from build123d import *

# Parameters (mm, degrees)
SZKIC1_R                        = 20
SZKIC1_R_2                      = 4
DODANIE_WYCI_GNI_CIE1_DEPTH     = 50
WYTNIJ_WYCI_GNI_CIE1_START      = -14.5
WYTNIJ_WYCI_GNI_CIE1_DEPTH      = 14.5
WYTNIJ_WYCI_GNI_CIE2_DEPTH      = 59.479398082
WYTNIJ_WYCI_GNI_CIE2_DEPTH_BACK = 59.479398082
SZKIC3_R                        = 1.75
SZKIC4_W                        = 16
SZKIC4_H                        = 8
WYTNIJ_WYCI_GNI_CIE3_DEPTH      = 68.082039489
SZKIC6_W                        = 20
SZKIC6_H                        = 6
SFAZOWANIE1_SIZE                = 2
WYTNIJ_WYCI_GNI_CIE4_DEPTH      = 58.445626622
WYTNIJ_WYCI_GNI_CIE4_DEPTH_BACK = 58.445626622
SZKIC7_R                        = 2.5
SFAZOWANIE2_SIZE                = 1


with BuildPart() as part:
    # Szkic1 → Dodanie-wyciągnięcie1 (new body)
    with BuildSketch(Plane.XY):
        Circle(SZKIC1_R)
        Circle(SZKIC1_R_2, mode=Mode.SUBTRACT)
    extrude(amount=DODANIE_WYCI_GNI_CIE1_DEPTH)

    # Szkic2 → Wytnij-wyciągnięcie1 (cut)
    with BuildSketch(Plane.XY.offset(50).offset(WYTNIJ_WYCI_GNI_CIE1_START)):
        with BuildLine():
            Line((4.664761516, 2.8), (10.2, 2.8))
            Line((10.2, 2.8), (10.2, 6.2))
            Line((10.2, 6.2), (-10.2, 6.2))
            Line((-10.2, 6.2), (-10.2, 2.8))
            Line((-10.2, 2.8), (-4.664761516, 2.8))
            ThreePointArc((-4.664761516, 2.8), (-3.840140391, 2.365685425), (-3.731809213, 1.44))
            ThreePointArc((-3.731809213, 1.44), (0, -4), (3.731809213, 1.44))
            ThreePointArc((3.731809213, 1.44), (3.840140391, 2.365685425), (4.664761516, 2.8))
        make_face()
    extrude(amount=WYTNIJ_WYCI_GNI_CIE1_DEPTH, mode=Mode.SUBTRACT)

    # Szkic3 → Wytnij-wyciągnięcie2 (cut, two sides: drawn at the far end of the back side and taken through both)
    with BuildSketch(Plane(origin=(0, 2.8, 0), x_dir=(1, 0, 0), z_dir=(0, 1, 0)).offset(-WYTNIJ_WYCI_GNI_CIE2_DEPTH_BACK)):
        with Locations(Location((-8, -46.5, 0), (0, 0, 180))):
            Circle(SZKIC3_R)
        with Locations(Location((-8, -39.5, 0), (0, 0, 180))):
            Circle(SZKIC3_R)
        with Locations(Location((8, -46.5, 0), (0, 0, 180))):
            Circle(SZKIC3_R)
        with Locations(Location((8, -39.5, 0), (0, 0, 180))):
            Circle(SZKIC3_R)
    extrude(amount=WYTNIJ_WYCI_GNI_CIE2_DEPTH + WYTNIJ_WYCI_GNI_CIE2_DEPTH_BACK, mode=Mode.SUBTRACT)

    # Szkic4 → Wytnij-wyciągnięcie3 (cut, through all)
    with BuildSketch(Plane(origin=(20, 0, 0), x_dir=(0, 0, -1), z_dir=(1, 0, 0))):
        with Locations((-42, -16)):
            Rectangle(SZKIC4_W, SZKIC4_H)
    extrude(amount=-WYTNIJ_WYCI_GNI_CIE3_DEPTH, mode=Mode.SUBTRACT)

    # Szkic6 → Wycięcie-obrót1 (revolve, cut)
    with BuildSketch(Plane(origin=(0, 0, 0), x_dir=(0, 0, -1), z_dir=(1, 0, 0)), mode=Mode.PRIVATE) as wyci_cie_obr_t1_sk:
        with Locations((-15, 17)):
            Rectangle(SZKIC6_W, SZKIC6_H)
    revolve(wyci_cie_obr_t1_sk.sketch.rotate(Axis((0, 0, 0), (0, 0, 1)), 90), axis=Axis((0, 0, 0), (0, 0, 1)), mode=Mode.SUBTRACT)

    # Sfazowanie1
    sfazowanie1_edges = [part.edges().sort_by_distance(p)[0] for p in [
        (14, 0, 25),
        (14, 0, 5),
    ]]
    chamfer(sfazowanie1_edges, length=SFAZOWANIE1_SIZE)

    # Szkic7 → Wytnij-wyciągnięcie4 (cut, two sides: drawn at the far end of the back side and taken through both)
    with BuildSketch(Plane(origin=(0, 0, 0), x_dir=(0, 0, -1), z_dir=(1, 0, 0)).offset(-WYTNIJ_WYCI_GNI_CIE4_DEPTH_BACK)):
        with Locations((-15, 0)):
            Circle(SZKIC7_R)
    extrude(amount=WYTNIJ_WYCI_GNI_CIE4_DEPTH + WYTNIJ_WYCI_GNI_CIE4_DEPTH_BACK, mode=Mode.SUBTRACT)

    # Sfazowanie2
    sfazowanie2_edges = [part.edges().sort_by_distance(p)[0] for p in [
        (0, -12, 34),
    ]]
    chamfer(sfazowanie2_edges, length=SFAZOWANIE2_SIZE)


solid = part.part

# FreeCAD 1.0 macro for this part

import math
import FreeCAD as App
import Part
import Sketcher

V = App.Vector


def edges_at(feature, points):
    """Names of the edges that pass closest to the given points."""
    edges = feature.Shape.Edges
    near = lambda p: min(range(len(edges)), key=lambda i: edges[i].distToShape(Part.Vertex(*p))[0])
    return sorted({f"Edge{near(p) + 1}" for p in points})


def add_polygon(sketch, points):
    """Adds a closed chain of lines whose ends are joined by coincident constraints."""
    first, n = sketch.GeometryCount, len(points)
    for a, b in zip(points, points[1:] + points[:1]):
        sketch.addGeometry(Part.LineSegment(App.Vector(*a, 0), App.Vector(*b, 0)), False)
    for i in range(n):
        sketch.addConstraint(Sketcher.Constraint("Coincident", first + i, 2, first + (i + 1) % n, 1))

doc = App.newDocument("Part")
body = doc.addObject("PartDesign::Body", "Body")

sketch1 = doc.addObject("Sketcher::SketchObject", "Sketch")
body.addObject(sketch1)
sketch1.AttachmentSupport = (doc.XY_Plane, [""])
sketch1.MapMode = "FlatFace"
sketch1.addGeometry([
    Part.Circle(V(0, 0, 0), V(0, 0, 1), 20),
    Part.Circle(V(0, 0, 0), V(0, 0, 1), 4),
], False)
sketch1.addConstraint([
    Sketcher.Constraint("Coincident", 0, 3, -1, 1),
    Sketcher.Constraint("Coincident", 1, 3, -1, 1),
    Sketcher.Constraint("Diameter", 0, 40.0),
    Sketcher.Constraint("Diameter", 1, 8.0),
])
pad1 = doc.addObject("PartDesign::Pad", "Pad")
body.addObject(pad1)
pad1.Profile = sketch1
pad1.Length = 50

sketch2 = doc.addObject("Sketcher::SketchObject", "Sketch001")
body.addObject(sketch2)
sketch2.AttachmentSupport = (doc.XY_Plane, [""])
sketch2.MapMode = "FlatFace"
sketch2.AttachmentOffset = App.Placement(V(0, 0, 35.5), App.Rotation())
sketch2.addGeometry([
    Part.LineSegment(V(4.7, 2.8, 0), V(10.2, 2.8, 0)),
    Part.LineSegment(V(10.2, 2.8, 0), V(10.2, 6.2, 0)),
    Part.LineSegment(V(10.2, 6.2, 0), V(-10.2, 6.2, 0)),
    Part.LineSegment(V(-10.2, 6.2, 0), V(-10.2, 2.8, 0)),
    Part.LineSegment(V(-10.2, 2.8, 0), V(-4.7, 2.8, 0)),
    Part.ArcOfCircle(Part.Circle(V(-4.7, 1.8, 0), V(0, 0, 1), 1), math.radians(-21), math.radians(90)),
    Part.ArcOfCircle(Part.Circle(V(0, 0, 0), V(0, 0, 1), 4), math.radians(159), math.radians(381)),
    Part.ArcOfCircle(Part.Circle(V(4.7, 1.8, 0), V(0, 0, 1), 1), math.radians(90), math.radians(201)),
], False)
sketch2.addConstraint([
    Sketcher.Constraint("Coincident", 0, 2, 1, 1),
    Sketcher.Constraint("Coincident", 1, 2, 2, 1),
    Sketcher.Constraint("Coincident", 2, 2, 3, 1),
    Sketcher.Constraint("Coincident", 3, 2, 4, 1),
    Sketcher.Constraint("Tangent", 4, 2, 5, 2),
    Sketcher.Constraint("Tangent", 5, 1, 6, 1),
    Sketcher.Constraint("Tangent", 6, 2, 7, 2),
    Sketcher.Constraint("Tangent", 7, 1, 0, 1),
    Sketcher.Constraint("Horizontal", 0),
    Sketcher.Constraint("Vertical", 1),
    Sketcher.Constraint("Horizontal", 2),
    Sketcher.Constraint("Vertical", 3),
    Sketcher.Constraint("Horizontal", 4),
    Sketcher.Constraint("Coincident", 6, 3, -1, 1),
    Sketcher.Constraint("Equal", 5, 7),
    Sketcher.Constraint("Symmetric", 0, 2, 3, 2, -2),
    Sketcher.Constraint("Radius", 5, 1.0),
    Sketcher.Constraint("Radius", 6, 4.0),
    Sketcher.Constraint("DistanceX", 2, 2, 2, 1, 20.4),
    Sketcher.Constraint("DistanceY", 1, 1, 1, 2, 3.4),
    Sketcher.Constraint("DistanceY", -1, 1, 5, 3, 1.8),
])
pocket1 = doc.addObject("PartDesign::Pocket", "Pocket")
body.addObject(pocket1)
pocket1.Profile = sketch2
pocket1.Length = 14.5
pocket1.Reversed = True

sketch3 = doc.addObject("Sketcher::SketchObject", "Sketch002")
body.addObject(sketch3)
sketch3.AttachmentSupport = (doc.XZ_Plane, [""])
sketch3.MapMode = "FlatFace"
sketch3.AttachmentOffset = App.Placement(V(0, 0, -2.8), App.Rotation())
sketch3.addGeometry([
    Part.Circle(V(-8, 46.5, 0), V(0, 0, 1), 1.8),
    Part.Circle(V(-8, 39.5, 0), V(0, 0, 1), 1.8),
    Part.Circle(V(8, 46.5, 0), V(0, 0, 1), 1.8),
    Part.Circle(V(8, 39.5, 0), V(0, 0, 1), 1.8),
], False)
sketch3.addConstraint([
    Sketcher.Constraint("Equal", 0, 1),
    Sketcher.Constraint("Equal", 1, 2),
    Sketcher.Constraint("Equal", 2, 3),
    Sketcher.Constraint("Symmetric", 0, 3, 2, 3, -2),
    Sketcher.Constraint("Symmetric", 1, 3, 3, 3, -2),
    Sketcher.Constraint("Vertical", 0, 3, 1, 3),
    Sketcher.Constraint("Diameter", 0, 3.5),
    Sketcher.Constraint("DistanceX", 0, 3, -1, 1, 8.0),
    Sketcher.Constraint("DistanceY", 1, 3, 0, 3, 7.0),
    Sketcher.Constraint("DistanceY", -1, 1, 0, 3, 46.5),
])
pocket2 = doc.addObject("PartDesign::Pocket", "Pocket001")
body.addObject(pocket2)
pocket2.Profile = sketch3
pocket2.Type = "ThroughAll"
pocket2.Midplane = True

sketch4 = doc.addObject("Sketcher::SketchObject", "Sketch003")
body.addObject(sketch4)
sketch4.AttachmentSupport = (doc.YZ_Plane, [""])
sketch4.MapMode = "FlatFace"
sketch4.AttachmentOffset = App.Placement(V(0, 0, 20), App.Rotation())
add_polygon(sketch4, [(-12, 50), (-20, 50), (-20, 34), (-12, 34)])
sketch4.addConstraint([
    Sketcher.Constraint("Horizontal", 0),
    Sketcher.Constraint("Vertical", 1),
    Sketcher.Constraint("Horizontal", 2),
    Sketcher.Constraint("Vertical", 3),
    Sketcher.Constraint("DistanceX", 0, 2, 0, 1, 8.0),
    Sketcher.Constraint("DistanceY", 1, 2, 1, 1, 16.0),
    Sketcher.Constraint("DistanceX", 0, 2, -1, 1, 20.0),
    Sketcher.Constraint("DistanceY", -1, 1, 0, 2, 50.0),
])
pocket3 = doc.addObject("PartDesign::Pocket", "Pocket002")
body.addObject(pocket3)
pocket3.Profile = sketch4
pocket3.Type = "ThroughAll"

sketch5 = doc.addObject("Sketcher::SketchObject", "Sketch004")
body.addObject(sketch5)
sketch5.AttachmentSupport = (doc.YZ_Plane, [""])
sketch5.MapMode = "FlatFace"
add_polygon(sketch5, [(20, 25), (14, 25), (14, 5), (20, 5)])
sketch5.addConstraint([
    Sketcher.Constraint("Horizontal", 0),
    Sketcher.Constraint("Vertical", 1),
    Sketcher.Constraint("Horizontal", 2),
    Sketcher.Constraint("Vertical", 3),
    Sketcher.Constraint("DistanceX", 0, 2, 0, 1, 6.0),
    Sketcher.Constraint("DistanceY", 1, 2, 1, 1, 20.0),
    Sketcher.Constraint("DistanceX", -1, 1, 0, 2, 14.0),
    Sketcher.Constraint("DistanceY", -1, 1, 0, 2, 25.0),
])
groove = doc.addObject("PartDesign::Groove", "Groove")
body.addObject(groove)
groove.Profile = sketch5
groove.ReferenceAxis = (sketch5, ["V_Axis"])
groove.Angle = 360
doc.recompute()

chamfer = doc.addObject("PartDesign::Chamfer", "Chamfer")
body.addObject(chamfer)
chamfer.Base = (groove, edges_at(groove, [(14, 0, 25), (14, 0, 5)]))
chamfer.Size = 2

sketch6 = doc.addObject("Sketcher::SketchObject", "Sketch005")
body.addObject(sketch6)
sketch6.AttachmentSupport = (doc.YZ_Plane, [""])
sketch6.MapMode = "FlatFace"
sketch6.addGeometry(Part.Circle(V(0, 15, 0), V(0, 0, 1), 2.5), False)
sketch6.addConstraint([
    Sketcher.Constraint("PointOnObject", 0, 3, -2),
    Sketcher.Constraint("Diameter", 0, 5.0),
    Sketcher.Constraint("DistanceY", -1, 1, 0, 3, 15.0),
])
pocket4 = doc.addObject("PartDesign::Pocket", "Pocket003")
body.addObject(pocket4)
pocket4.Profile = sketch6
pocket4.Type = "ThroughAll"
pocket4.Midplane = True
doc.recompute()

chamfer2 = doc.addObject("PartDesign::Chamfer", "Chamfer001")
body.addObject(chamfer2)
chamfer2.Base = (pocket4, edges_at(pocket4, [(0, -12, 34)]))
chamfer2.Size = 1

doc.recompute()
